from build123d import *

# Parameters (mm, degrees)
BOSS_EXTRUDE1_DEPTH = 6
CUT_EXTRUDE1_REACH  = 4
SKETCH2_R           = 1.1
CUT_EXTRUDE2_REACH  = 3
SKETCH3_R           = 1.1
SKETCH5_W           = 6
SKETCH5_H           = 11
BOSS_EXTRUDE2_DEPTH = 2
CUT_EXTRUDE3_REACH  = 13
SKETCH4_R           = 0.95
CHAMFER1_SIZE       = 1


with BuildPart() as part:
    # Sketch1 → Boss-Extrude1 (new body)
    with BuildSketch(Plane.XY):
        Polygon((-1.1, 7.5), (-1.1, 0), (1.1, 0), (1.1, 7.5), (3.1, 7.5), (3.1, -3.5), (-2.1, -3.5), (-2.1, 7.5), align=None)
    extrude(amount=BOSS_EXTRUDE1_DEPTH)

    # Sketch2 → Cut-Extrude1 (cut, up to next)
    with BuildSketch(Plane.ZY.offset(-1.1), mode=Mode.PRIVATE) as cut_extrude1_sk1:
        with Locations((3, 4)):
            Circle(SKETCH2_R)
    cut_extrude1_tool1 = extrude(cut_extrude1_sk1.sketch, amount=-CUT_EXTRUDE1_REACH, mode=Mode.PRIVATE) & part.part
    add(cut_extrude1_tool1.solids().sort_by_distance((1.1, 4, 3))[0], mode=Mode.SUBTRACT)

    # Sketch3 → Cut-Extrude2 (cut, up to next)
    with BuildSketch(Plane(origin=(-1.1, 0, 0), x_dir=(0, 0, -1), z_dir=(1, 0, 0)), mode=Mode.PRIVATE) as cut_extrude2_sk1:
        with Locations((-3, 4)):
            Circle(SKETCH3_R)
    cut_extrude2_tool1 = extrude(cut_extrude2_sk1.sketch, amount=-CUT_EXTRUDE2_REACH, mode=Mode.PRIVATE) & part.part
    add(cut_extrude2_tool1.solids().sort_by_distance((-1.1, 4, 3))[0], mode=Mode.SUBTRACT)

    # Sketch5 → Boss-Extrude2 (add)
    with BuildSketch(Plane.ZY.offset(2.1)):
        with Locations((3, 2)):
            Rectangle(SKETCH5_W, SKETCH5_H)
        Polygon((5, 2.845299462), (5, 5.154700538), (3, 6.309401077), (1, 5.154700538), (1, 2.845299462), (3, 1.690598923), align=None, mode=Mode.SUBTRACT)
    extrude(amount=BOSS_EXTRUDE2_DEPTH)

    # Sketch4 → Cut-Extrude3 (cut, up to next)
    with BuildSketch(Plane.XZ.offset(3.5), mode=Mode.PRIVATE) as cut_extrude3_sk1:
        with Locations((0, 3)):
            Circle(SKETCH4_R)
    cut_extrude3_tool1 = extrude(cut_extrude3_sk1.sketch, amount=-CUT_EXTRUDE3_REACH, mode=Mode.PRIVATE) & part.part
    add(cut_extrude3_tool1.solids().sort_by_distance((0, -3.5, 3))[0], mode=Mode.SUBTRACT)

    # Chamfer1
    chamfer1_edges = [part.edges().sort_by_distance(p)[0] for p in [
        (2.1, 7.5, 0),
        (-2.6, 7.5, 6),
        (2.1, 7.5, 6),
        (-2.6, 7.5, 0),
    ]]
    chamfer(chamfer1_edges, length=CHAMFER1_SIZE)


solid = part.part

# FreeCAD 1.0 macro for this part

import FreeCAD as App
import Part
import Sketcher
from FreeCAD import Vector
Q = App.Units.Quantity


def edges_at(feature, points):
    """Names of the edges that pass closest to the given points."""
    edges = feature.Shape.Edges
    near = lambda p: min(range(len(edges)), key=lambda i: edges[i].distToShape(Part.Vertex(*p))[0])
    return sorted({f"Edge{near(p) + 1}" for p in points})


def add_polygon(sketch, points):
    """Adds a closed chain of lines whose ends are joined by coincident constraints."""
    first, n = sketch.GeometryCount, len(points)
    for a, b in zip(points, points[1:] + points[:1]):
        sketch.addGeometry(Part.LineSegment(App.Vector(*a, 0), App.Vector(*b, 0)), False)
    for i in range(n):
        sketch.addConstraint(Sketcher.Constraint("Coincident", first + i, 2, first + (i + 1) % n, 1))

doc = App.newDocument("Part")
body = doc.addObject("PartDesign::Body", "Body")

# Sketch on XY plane
sketch1 = body.newObject("Sketcher::SketchObject", "Sketch")
sketch1.AttachmentSupport = (doc.getObject("XY_Plane"), [""])
sketch1.MapMode = "FlatFace"
add_polygon(sketch1, [(-1.1, 0), (-1.1, 7.5), (-2.1, 7.5), (-2.1, -3.5), (3.1, -3.5), (3.1, 7.5), (1.1, 7.5), (1.1, 0)])  # lines 0-7
sketch1.addConstraint(Sketcher.Constraint("Vertical", 0))
sketch1.addConstraint(Sketcher.Constraint("Horizontal", 1))
sketch1.addConstraint(Sketcher.Constraint("Vertical", 2))
sketch1.addConstraint(Sketcher.Constraint("Horizontal", 3))
sketch1.addConstraint(Sketcher.Constraint("Vertical", 4))
sketch1.addConstraint(Sketcher.Constraint("Horizontal", 5))
sketch1.addConstraint(Sketcher.Constraint("Vertical", 6))
sketch1.addConstraint(Sketcher.Constraint("Horizontal", 7))
sketch1.addConstraint(Sketcher.Constraint("Symmetric", 6, 2, 7, 2, -1, 1))
sketch1.addConstraint(Sketcher.Constraint("Horizontal", 1, 2, 4, 2))
sketch1.addConstraint(Sketcher.Constraint("DistanceX", 1, 2, 1, 1, Q("1 mm")))
sketch1.addConstraint(Sketcher.Constraint("DistanceX", 5, 2, 5, 1, Q("2 mm")))
sketch1.addConstraint(Sketcher.Constraint("DistanceY", 2, 2, 2, 1, Q("11 mm")))
sketch1.addConstraint(Sketcher.Constraint("DistanceX", 3, 1, 3, 2, Q("5.2 mm")))
sketch1.addConstraint(Sketcher.Constraint("DistanceY", 0, 1, 0, 2, Q("7.5 mm")))
pad1 = body.newObject("PartDesign::Pad", "Pad")
pad1.Profile = sketch1
pad1.Length = 6

# Sketch on YZ plane
sketch2 = body.newObject("Sketcher::SketchObject", "Sketch001")
sketch2.AttachmentSupport = (doc.getObject("YZ_Plane"), [""])
sketch2.MapMode = "FlatFace"
sketch2.AttachmentOffset = App.Placement(Vector(0, 0, 1.1), App.Rotation())
sketch2.addGeometry(Part.Circle(Vector(4, 3, 0), Vector(0, 0, 1), 1.1), False)
sketch2.addConstraint(Sketcher.Constraint("Diameter", 0, Q("2.2 mm")))
sketch2.addConstraint(Sketcher.Constraint("DistanceX", -1, 1, 0, 3, Q("4 mm")))
sketch2.addConstraint(Sketcher.Constraint("DistanceY", -1, 1, 0, 3, Q("3 mm")))
pocket1 = body.newObject("PartDesign::Pocket", "Pocket")
pocket1.Profile = sketch2
pocket1.Type = "UpToFirst"
pocket1.Reversed = True

# Sketch on YZ plane
sketch3 = body.newObject("Sketcher::SketchObject", "Sketch002")
sketch3.AttachmentSupport = (doc.getObject("YZ_Plane"), [""])
sketch3.MapMode = "FlatFace"
sketch3.AttachmentOffset = App.Placement(Vector(0, 0, -1.1), App.Rotation())
sketch3.addGeometry(Part.Circle(Vector(4, 3, 0), Vector(0, 0, 1), 1.1), False)
sketch3.addConstraint(Sketcher.Constraint("Diameter", 0, Q("2.2 mm")))
sketch3.addConstraint(Sketcher.Constraint("DistanceX", -1, 1, 0, 3, Q("4 mm")))
sketch3.addConstraint(Sketcher.Constraint("DistanceY", -1, 1, 0, 3, Q("3 mm")))
pocket2 = body.newObject("PartDesign::Pocket", "Pocket001")
pocket2.Profile = sketch3
pocket2.Type = "UpToFirst"

# Sketch on YZ plane
sketch4 = body.newObject("Sketcher::SketchObject", "Sketch003")
sketch4.AttachmentSupport = (doc.getObject("YZ_Plane"), [""])
sketch4.MapMode = "FlatFace"
sketch4.AttachmentOffset = App.Placement(Vector(0, 0, -2.1), App.Rotation())
add_polygon(sketch4, [(7.5, 0), (-3.5, 0), (-3.5, 6), (7.5, 6)])  # lines 0-3
add_polygon(sketch4, [(5.154701, 5), (2.845299, 5), (1.690599, 3), (2.845299, 1), (5.154701, 1), (6.309401, 3)])  # lines 4-9
sketch4.addConstraint(Sketcher.Constraint("Horizontal", 0))
sketch4.addConstraint(Sketcher.Constraint("Vertical", 1))
sketch4.addConstraint(Sketcher.Constraint("Horizontal", 2))
sketch4.addConstraint(Sketcher.Constraint("Vertical", 3))
sketch4.addConstraint(Sketcher.Constraint("Horizontal", 4))
sketch4.addConstraint(Sketcher.Constraint("Horizontal", 7))
sketch4.addConstraint(Sketcher.Constraint("PointOnObject", 0, 2, -1))
sketch4.addConstraint(Sketcher.Constraint("Parallel", 5, 8))
sketch4.addConstraint(Sketcher.Constraint("Parallel", 6, 9))
sketch4.addConstraint(Sketcher.Constraint("Horizontal", 5, 2, 8, 2))
sketch4.addConstraint(Sketcher.Constraint("Vertical", 4, 2, 6, 2))
sketch4.addConstraint(Sketcher.Constraint("Vertical", 7, 2, 9, 2))
sketch4.addConstraint(Sketcher.Constraint("DistanceX", 0, 2, 0, 1, Q("11 mm")))
sketch4.addConstraint(Sketcher.Constraint("DistanceY", 1, 1, 1, 2, Q("6 mm")))
sketch4.addConstraint(Sketcher.Constraint("Angle", 5, Q("-120 deg")))
sketch4.addConstraint(Sketcher.Constraint("DistanceY", -1, 1, 4, 2, Q("5 mm")))
sketch4.addConstraint(Sketcher.Constraint("DistanceY", -1, 1, 5, 2, Q("3 mm")))
sketch4.addConstraint(Sketcher.Constraint("DistanceX", 0, 2, -1, 1, Q("3.5 mm")))
sketch4.addConstraint(Sketcher.Constraint("DistanceX", 4, 2, 4, 1, Q("2.309401 mm")))
sketch4.addConstraint(Sketcher.Constraint("DistanceX", -1, 1, 4, 2, Q("2.845299 mm")))
pad2 = body.newObject("PartDesign::Pad", "Pad001")
pad2.Profile = sketch4
pad2.Length = 2
pad2.Reversed = True

# Sketch on XZ plane
sketch5 = body.newObject("Sketcher::SketchObject", "Sketch004")
sketch5.AttachmentSupport = (doc.getObject("XZ_Plane"), [""])
sketch5.MapMode = "FlatFace"
sketch5.AttachmentOffset = App.Placement(Vector(0, 0, 3.5), App.Rotation())
sketch5.addGeometry(Part.Circle(Vector(0, 3, 0), Vector(0, 0, 1), 0.95), False)
sketch5.addConstraint(Sketcher.Constraint("PointOnObject", 0, 3, -2))
sketch5.addConstraint(Sketcher.Constraint("Diameter", 0, Q("1.9 mm")))
sketch5.addConstraint(Sketcher.Constraint("DistanceY", -1, 1, 0, 3, Q("3 mm")))
pocket3 = body.newObject("PartDesign::Pocket", "Pocket002")
pocket3.Profile = sketch5
pocket3.Type = "UpToFirst"
doc.recompute()

chamfer = body.newObject("PartDesign::Chamfer", "Chamfer")
chamfer.Base = (pocket3, edges_at(pocket3, [
    (2.1, 7.5, 0),
    (-2.6, 7.5, 6),
    (2.1, 7.5, 6),
    (-2.6, 7.5, 0),
]))
chamfer.Size = 1

doc.recompute()
